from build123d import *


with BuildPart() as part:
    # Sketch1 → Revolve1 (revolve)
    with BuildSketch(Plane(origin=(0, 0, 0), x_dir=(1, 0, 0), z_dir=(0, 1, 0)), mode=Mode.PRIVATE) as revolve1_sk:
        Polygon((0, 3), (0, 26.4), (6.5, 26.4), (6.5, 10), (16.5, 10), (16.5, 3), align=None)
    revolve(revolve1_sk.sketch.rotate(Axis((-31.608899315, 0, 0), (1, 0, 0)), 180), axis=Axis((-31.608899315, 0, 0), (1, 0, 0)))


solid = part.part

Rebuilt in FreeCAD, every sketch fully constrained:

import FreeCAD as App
import Part
import Sketcher


def add_polygon(sketch, points):
    """Adds a closed chain of lines whose ends are joined by coincident constraints."""
    first, n = sketch.GeometryCount, len(points)
    for a, b in zip(points, points[1:] + points[:1]):
        sketch.addGeometry(Part.LineSegment(App.Vector(*a, 0), App.Vector(*b, 0)), False)
    for i in range(n):
        sketch.addConstraint(Sketcher.Constraint("Coincident", first + i, 2, first + (i + 1) % n, 1))

doc = App.newDocument("Part")
body = doc.addObject("PartDesign::Body", "Body")

sketch1 = body.newObject("Sketcher::SketchObject", "Sketch")
sketch1.AttachmentSupport = (doc.getObject("XZ_Plane"), [""])
sketch1.MapMode = "FlatFace"
add_polygon(sketch1, [(0, -26), (0, -3), (16, -3), (16, -10), (6, -10), (6, -26)])
sketch1.addConstraint([
    Sketcher.Constraint("Vertical", 0),
    Sketcher.Constraint("Horizontal", 1),
    Sketcher.Constraint("Vertical", 2),
    Sketcher.Constraint("Horizontal", 3),
    Sketcher.Constraint("Vertical", 4),
    Sketcher.Constraint("Horizontal", 5),
    Sketcher.Constraint("PointOnObject", 0, 2, -2),
    Sketcher.Constraint("DistanceX", 3, 2, 3, 1, 10.0),
    Sketcher.Constraint("DistanceY", 2, 2, 2, 1, 7.0),
    Sketcher.Constraint("DistanceX", 1, 1, 1, 2, 16.5),
    Sketcher.Constraint("DistanceY", 0, 1, 0, 2, 23.4),
    Sketcher.Constraint("DistanceY", 0, 2, -1, 1, 3.0),
])
revolution = body.newObject("PartDesign::Revolution", "Revolution")
revolution.Profile = sketch1
revolution.ReferenceAxis = (sketch1, ["H_Axis"])
revolution.Angle = 360

doc.recompute()
